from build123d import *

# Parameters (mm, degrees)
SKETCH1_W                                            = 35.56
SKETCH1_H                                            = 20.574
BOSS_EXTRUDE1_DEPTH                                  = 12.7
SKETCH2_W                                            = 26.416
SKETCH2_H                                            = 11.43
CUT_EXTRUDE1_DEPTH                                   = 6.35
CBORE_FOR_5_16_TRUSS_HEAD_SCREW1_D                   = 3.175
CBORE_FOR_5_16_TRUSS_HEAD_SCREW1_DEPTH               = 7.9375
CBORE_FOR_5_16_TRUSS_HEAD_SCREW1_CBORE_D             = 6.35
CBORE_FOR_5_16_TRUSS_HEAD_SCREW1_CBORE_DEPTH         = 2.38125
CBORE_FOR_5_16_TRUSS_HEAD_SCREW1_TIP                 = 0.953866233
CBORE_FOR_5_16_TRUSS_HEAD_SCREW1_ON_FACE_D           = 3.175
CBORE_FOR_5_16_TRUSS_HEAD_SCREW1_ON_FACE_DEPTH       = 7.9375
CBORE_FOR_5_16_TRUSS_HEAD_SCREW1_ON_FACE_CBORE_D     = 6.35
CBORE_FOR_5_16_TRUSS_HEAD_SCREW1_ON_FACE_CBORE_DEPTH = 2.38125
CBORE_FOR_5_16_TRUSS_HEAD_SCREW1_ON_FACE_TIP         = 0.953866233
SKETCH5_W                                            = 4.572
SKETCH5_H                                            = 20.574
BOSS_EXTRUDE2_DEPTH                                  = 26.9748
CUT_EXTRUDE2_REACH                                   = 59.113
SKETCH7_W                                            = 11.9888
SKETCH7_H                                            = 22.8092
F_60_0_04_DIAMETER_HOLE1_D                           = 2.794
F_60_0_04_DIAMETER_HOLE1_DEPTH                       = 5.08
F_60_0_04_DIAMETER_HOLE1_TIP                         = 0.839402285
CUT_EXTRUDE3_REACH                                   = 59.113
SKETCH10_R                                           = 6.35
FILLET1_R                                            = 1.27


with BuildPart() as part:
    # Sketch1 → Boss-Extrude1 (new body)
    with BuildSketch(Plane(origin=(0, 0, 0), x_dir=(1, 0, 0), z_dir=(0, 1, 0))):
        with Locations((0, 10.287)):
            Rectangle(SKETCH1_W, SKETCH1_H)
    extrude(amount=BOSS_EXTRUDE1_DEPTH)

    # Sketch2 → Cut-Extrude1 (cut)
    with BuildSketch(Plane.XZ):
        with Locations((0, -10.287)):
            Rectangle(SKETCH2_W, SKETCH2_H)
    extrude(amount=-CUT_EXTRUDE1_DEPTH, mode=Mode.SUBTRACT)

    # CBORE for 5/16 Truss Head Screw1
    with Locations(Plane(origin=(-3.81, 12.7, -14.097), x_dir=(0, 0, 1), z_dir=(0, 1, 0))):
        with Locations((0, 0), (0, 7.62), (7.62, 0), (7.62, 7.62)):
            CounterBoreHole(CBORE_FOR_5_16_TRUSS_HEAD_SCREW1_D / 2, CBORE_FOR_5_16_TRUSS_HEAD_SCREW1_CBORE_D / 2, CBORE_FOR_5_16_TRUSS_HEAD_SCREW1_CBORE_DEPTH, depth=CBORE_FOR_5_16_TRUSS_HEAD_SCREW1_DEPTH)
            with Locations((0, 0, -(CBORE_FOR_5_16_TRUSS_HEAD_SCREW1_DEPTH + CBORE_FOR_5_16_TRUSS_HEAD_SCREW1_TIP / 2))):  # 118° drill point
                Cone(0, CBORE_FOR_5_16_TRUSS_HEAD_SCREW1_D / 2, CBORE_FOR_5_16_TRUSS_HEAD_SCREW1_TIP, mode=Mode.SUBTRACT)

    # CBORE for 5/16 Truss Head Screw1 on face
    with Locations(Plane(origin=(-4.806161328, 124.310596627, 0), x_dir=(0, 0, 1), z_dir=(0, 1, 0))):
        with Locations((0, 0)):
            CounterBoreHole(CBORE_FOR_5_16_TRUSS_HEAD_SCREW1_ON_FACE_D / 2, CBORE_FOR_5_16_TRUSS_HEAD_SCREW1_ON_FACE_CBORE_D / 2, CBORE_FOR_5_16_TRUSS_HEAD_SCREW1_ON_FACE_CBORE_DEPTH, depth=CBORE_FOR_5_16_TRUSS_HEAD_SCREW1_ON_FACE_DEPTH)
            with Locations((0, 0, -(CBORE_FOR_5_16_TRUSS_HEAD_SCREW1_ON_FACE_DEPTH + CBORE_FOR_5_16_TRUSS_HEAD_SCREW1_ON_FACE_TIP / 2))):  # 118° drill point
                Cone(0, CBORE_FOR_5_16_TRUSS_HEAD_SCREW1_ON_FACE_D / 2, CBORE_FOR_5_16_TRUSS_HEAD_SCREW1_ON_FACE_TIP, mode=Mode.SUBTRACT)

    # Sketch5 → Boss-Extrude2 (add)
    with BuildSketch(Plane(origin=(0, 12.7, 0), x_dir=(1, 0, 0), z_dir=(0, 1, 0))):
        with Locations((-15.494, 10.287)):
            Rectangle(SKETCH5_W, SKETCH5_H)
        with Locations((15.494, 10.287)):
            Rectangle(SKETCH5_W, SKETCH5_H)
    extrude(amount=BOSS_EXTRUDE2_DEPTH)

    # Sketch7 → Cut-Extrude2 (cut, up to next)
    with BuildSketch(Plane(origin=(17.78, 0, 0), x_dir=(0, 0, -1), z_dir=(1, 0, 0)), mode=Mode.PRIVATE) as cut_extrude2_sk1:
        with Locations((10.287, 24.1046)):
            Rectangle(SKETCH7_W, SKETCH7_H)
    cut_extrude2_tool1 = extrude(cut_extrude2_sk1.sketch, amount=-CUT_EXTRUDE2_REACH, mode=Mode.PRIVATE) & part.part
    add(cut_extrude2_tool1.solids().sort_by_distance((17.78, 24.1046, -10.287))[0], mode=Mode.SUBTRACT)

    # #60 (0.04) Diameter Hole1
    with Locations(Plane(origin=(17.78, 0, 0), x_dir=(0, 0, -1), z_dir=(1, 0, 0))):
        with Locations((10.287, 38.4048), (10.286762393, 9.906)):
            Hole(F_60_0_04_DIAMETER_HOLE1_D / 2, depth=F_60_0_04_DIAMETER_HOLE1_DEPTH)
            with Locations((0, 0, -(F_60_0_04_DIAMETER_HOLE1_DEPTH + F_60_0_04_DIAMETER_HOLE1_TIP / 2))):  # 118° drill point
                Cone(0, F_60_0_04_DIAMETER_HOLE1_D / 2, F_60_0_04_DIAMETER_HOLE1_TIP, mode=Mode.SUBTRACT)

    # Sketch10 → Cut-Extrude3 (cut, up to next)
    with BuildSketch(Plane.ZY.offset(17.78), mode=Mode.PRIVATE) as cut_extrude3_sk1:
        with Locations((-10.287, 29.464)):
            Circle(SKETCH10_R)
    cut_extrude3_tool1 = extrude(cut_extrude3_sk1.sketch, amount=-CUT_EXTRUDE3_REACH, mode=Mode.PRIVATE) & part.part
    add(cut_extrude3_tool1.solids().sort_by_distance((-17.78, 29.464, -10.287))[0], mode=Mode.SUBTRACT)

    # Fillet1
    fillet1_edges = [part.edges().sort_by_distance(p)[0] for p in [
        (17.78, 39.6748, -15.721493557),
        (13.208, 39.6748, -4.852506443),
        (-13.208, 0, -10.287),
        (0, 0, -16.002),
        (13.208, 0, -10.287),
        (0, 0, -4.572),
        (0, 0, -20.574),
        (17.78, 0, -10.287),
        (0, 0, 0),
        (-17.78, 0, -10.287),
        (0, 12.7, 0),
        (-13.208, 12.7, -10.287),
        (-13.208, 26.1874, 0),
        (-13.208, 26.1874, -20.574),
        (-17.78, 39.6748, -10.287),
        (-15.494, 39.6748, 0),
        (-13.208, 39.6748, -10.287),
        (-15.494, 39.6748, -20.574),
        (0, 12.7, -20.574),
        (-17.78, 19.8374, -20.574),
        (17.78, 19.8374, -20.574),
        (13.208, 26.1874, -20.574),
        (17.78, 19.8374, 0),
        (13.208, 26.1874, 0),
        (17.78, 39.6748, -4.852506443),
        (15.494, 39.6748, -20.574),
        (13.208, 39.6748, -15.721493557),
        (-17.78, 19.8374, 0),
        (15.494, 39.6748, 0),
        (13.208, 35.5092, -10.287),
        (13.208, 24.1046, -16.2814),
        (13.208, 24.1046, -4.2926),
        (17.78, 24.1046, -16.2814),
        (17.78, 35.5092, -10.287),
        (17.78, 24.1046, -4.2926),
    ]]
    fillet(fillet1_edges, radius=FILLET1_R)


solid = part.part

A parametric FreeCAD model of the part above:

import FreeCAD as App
import Part
import Sketcher
Q = App.Units.Quantity


def edges_at(feature, points):
    """Names of the edges that pass closest to the given points."""
    edges = feature.Shape.Edges
    near = lambda p: min(range(len(edges)), key=lambda i: edges[i].distToShape(Part.Vertex(*p))[0])
    return sorted({f"Edge{near(p) + 1}" for p in points})


def add_polygon(sketch, points):
    """Adds a closed chain of lines whose ends are joined by coincident constraints."""
    first, n = sketch.GeometryCount, len(points)
    for a, b in zip(points, points[1:] + points[:1]):
        sketch.addGeometry(Part.LineSegment(App.Vector(*a, 0), App.Vector(*b, 0)), False)
    for i in range(n):
        sketch.addConstraint(Sketcher.Constraint("Coincident", first + i, 2, first + (i + 1) % n, 1))

doc = App.newDocument("Part")
body = doc.addObject("PartDesign::Body", "Body")

# Sketch on XZ plane
sketch1 = body.newObject("Sketcher::SketchObject", "Sketch")
sketch1.AttachmentSupport = (doc.getObject("XZ_Plane"), [""])
sketch1.MapMode = "FlatFace"
add_polygon(sketch1, [(-18, -21), (-18, 0), (18, 0), (18, -21)])  # lines 0-3
sketch1.addConstraint(Sketcher.Constraint("Vertical", 0))
sketch1.addConstraint(Sketcher.Constraint("Horizontal", 1))
sketch1.addConstraint(Sketcher.Constraint("Vertical", 2))
sketch1.addConstraint(Sketcher.Constraint("Horizontal", 3))
sketch1.addConstraint(Sketcher.Constraint("Symmetric", 0, 2, 1, 2, -1, 1))
sketch1.addConstraint(Sketcher.Constraint("DistanceX", 1, 1, 1, 2, Q("1.4 in")))
sketch1.addConstraint(Sketcher.Constraint("DistanceY", 0, 1, 0, 2, Q("0.81 in")))
pad1 = body.newObject("PartDesign::Pad", "Pad")
pad1.Profile = sketch1
pad1.Length = Q("0.5 in")
pad1.Reversed = True

# Sketch on XZ plane
sketch2 = body.newObject("Sketcher::SketchObject", "Sketch001")
sketch2.AttachmentSupport = (doc.getObject("XZ_Plane"), [""])
sketch2.MapMode = "FlatFace"
add_polygon(sketch2, [(-13, -5), (-13, -16), (13, -16), (13, -5)])  # lines 0-3
sketch2.addConstraint(Sketcher.Constraint("Vertical", 0))
sketch2.addConstraint(Sketcher.Constraint("Horizontal", 1))
sketch2.addConstraint(Sketcher.Constraint("Vertical", 2))
sketch2.addConstraint(Sketcher.Constraint("Horizontal", 3))
sketch2.addConstraint(Sketcher.Constraint("DistanceX", 1, 1, 1, 2, Q("1.04 in")))
sketch2.addConstraint(Sketcher.Constraint("DistanceY", 0, 2, 0, 1, Q("0.45 in")))
sketch2.addConstraint(Sketcher.Constraint("DistanceX", 0, 2, -1, 1, Q("0.52 in")))
sketch2.addConstraint(Sketcher.Constraint("DistanceY", 0, 2, -1, 1, Q("0.63 in")))
pocket1 = body.newObject("PartDesign::Pocket", "Pocket")
pocket1.Profile = sketch2
pocket1.Length = Q("0.25 in")

# Sketch on XZ plane
sketch3 = body.newObject("Sketcher::SketchObject", "Sketch002")
sketch3.AttachmentSupport = (doc.getObject("XZ_Plane"), [""])
sketch3.MapMode = "FlatFace"
sketch3.AttachmentOffset = App.Placement(App.Vector(0, 0, -0.5 * 25.4), App.Rotation())
sketch3.addGeometry(Part.Circle(App.Vector(-3.8, -14.1, 0), App.Vector(0, 0, 1), 1.6), False)
sketch3.addGeometry(Part.Circle(App.Vector(3.8, -14.1, 0), App.Vector(0, 0, 1), 1.6), False)
sketch3.addGeometry(Part.Circle(App.Vector(-3.8, -6.5, 0), App.Vector(0, 0, 1), 1.6), False)
sketch3.addGeometry(Part.Circle(App.Vector(3.8, -6.5, 0), App.Vector(0, 0, 1), 1.6), False)
sketch3.addConstraint(Sketcher.Constraint("Equal", 0, 1))
sketch3.addConstraint(Sketcher.Constraint("Equal", 1, 2))
sketch3.addConstraint(Sketcher.Constraint("Equal", 2, 3))
sketch3.addConstraint(Sketcher.Constraint("Symmetric", 0, 3, 1, 3, -2))
sketch3.addConstraint(Sketcher.Constraint("Symmetric", 2, 3, 3, 3, -2))
sketch3.addConstraint(Sketcher.Constraint("Vertical", 0, 3, 2, 3))
sketch3.addConstraint(Sketcher.Constraint("Diameter", 0, Q("0.125 in")))
sketch3.addConstraint(Sketcher.Constraint("DistanceX", 0, 3, 1, 3, Q("0.3 in")))
sketch3.addConstraint(Sketcher.Constraint("DistanceY", 0, 3, 2, 3, Q("0.3 in")))
sketch3.addConstraint(Sketcher.Constraint("DistanceY", 0, 3, -1, 1, Q("0.555 in")))
doc.recompute()
hole = body.newObject("PartDesign::Hole", "Hole")
hole.Profile = sketch3
hole.ThreadType = "None"
hole.Diameter = Q("0.125 in")
hole.DepthType = "Dimension"
hole.Depth = Q("0.3125 in")
hole.DrillPoint = "Angled"
hole.DrillPointAngle = 118
hole.HoleCutType = "Counterbore"
hole.HoleCutDiameter = Q("0.25 in")
hole.HoleCutDepth = Q("0.09375 in")
hole.Reversed = True

# Sketch on XZ plane
sketch4 = body.newObject("Sketcher::SketchObject", "Sketch003")
sketch4.AttachmentSupport = (doc.getObject("XZ_Plane"), [""])
sketch4.MapMode = "FlatFace"
sketch4.AttachmentOffset = App.Placement(App.Vector(0, 0, -124.310597), App.Rotation())
sketch4.addGeometry(Part.Circle(App.Vector(-4.8, 0, 0), App.Vector(0, 0, 1), 1.6), False)
sketch4.addConstraint(Sketcher.Constraint("PointOnObject", 0, 3, -1))
sketch4.addConstraint(Sketcher.Constraint("Diameter", 0, Q("0.125 in")))
sketch4.addConstraint(Sketcher.Constraint("DistanceX", 0, 3, -1, 1, 4.806161))
doc.recompute()
hole2 = body.newObject("PartDesign::Hole", "Hole001")
hole2.Profile = sketch4
hole2.ThreadType = "None"
hole2.Diameter = Q("0.125 in")
hole2.DepthType = "Dimension"
hole2.Depth = Q("0.3125 in")
hole2.DrillPoint = "Angled"
hole2.DrillPointAngle = 118
hole2.HoleCutType = "Counterbore"
hole2.HoleCutDiameter = Q("0.25 in")
hole2.HoleCutDepth = Q("0.09375 in")
hole2.Reversed = True

# Sketch on XZ plane
sketch5 = body.newObject("Sketcher::SketchObject", "Sketch004")
sketch5.AttachmentSupport = (doc.getObject("XZ_Plane"), [""])
sketch5.MapMode = "FlatFace"
sketch5.AttachmentOffset = App.Placement(App.Vector(0, 0, -0.5 * 25.4), App.Rotation())
add_polygon(sketch5, [(-17.8, -20.6), (-17.8, 0), (-13.2, 0), (-13.2, -20.6)])  # lines 0-3
add_polygon(sketch5, [(13.2, -20.6), (13.2, 0), (17.8, 0), (17.8, -20.6)])  # lines 4-7
sketch5.addConstraint(Sketcher.Constraint("Vertical", 0))
sketch5.addConstraint(Sketcher.Constraint("Horizontal", 1))
sketch5.addConstraint(Sketcher.Constraint("Vertical", 2))
sketch5.addConstraint(Sketcher.Constraint("Horizontal", 3))
sketch5.addConstraint(Sketcher.Constraint("Vertical", 4))
sketch5.addConstraint(Sketcher.Constraint("Horizontal", 5))
sketch5.addConstraint(Sketcher.Constraint("Vertical", 6))
sketch5.addConstraint(Sketcher.Constraint("Horizontal", 7))
sketch5.addConstraint(Sketcher.Constraint("Symmetric", 1, 2, 4, 2, -1, 1))
sketch5.addConstraint(Sketcher.Constraint("Symmetric", 0, 2, 5, 2, -2))
sketch5.addConstraint(Sketcher.Constraint("Horizontal", 3, 2, 6, 2))
sketch5.addConstraint(Sketcher.Constraint("DistanceX", 1, 1, 1, 2, Q("0.18 in")))
sketch5.addConstraint(Sketcher.Constraint("DistanceY", 0, 1, 0, 2, Q("0.81 in")))
sketch5.addConstraint(Sketcher.Constraint("DistanceX", 0, 2, -1, 1, Q("0.7 in")))
pad2 = body.newObject("PartDesign::Pad", "Pad001")
pad2.Profile = sketch5
pad2.Length = Q("1.062 in")
pad2.Reversed = True

# Sketch on YZ plane
sketch6 = body.newObject("Sketcher::SketchObject", "Sketch005")
sketch6.AttachmentSupport = (doc.getObject("YZ_Plane"), [""])
sketch6.MapMode = "FlatFace"
sketch6.AttachmentOffset = App.Placement(App.Vector(0, 0, 0.7 * 25.4), App.Rotation())
add_polygon(sketch6, [(36, -4), (13, -4), (13, -16), (36, -16)])  # lines 0-3
sketch6.addConstraint(Sketcher.Constraint("Horizontal", 0))
sketch6.addConstraint(Sketcher.Constraint("Vertical", 1))
sketch6.addConstraint(Sketcher.Constraint("Horizontal", 2))
sketch6.addConstraint(Sketcher.Constraint("Vertical", 3))
sketch6.addConstraint(Sketcher.Constraint("DistanceX", -1, 1, 0, 2, Q("0.5 in")))
sketch6.addConstraint(Sketcher.Constraint("DistanceX", 0, 2, 0, 1, Q("0.898 in")))
sketch6.addConstraint(Sketcher.Constraint("DistanceY", 1, 2, 1, 1, Q("0.472 in")))
sketch6.addConstraint(Sketcher.Constraint("DistanceY", 0, 2, -1, 1, Q("0.169 in")))
pocket2 = body.newObject("PartDesign::Pocket", "Pocket001")
pocket2.Profile = sketch6
pocket2.Type = "UpToFirst"

# Sketch on YZ plane
sketch7 = body.newObject("Sketcher::SketchObject", "Sketch006")
sketch7.AttachmentSupport = (doc.getObject("YZ_Plane"), [""])
sketch7.MapMode = "FlatFace"
sketch7.AttachmentOffset = App.Placement(App.Vector(0, 0, 0.7 * 25.4), App.Rotation())
sketch7.addGeometry(Part.Circle(App.Vector(38.4, -10.3, 0), App.Vector(0, 0, 1), 1.4), False)
sketch7.addGeometry(Part.Circle(App.Vector(9.9, -10.3, 0), App.Vector(0, 0, 1), 1.4), False)
sketch7.addConstraint(Sketcher.Constraint("Equal", 0, 1))
sketch7.addConstraint(Sketcher.Constraint("Diameter", 0, Q("0.11 in")))
sketch7.addConstraint(Sketcher.Constraint("DistanceX", -1, 1, 1, 3, Q("0.39 in")))
sketch7.addConstraint(Sketcher.Constraint("DistanceX", -1, 1, 0, 3, Q("1.512 in")))
sketch7.addConstraint(Sketcher.Constraint("DistanceY", 0, 3, -1, 1, Q("0.405 in")))
sketch7.addConstraint(Sketcher.Constraint("DistanceY", 1, 3, -1, 1, 10.286762))
doc.recompute()
hole3 = body.newObject("PartDesign::Hole", "Hole002")
hole3.Profile = sketch7
hole3.ThreadType = "None"
hole3.Diameter = Q("0.11 in")
hole3.DepthType = "Dimension"
hole3.Depth = Q("0.2 in")
hole3.DrillPoint = "Angled"
hole3.DrillPointAngle = 118

# Sketch on YZ plane
sketch8 = body.newObject("Sketcher::SketchObject", "Sketch007")
sketch8.AttachmentSupport = (doc.getObject("YZ_Plane"), [""])
sketch8.MapMode = "FlatFace"
sketch8.AttachmentOffset = App.Placement(App.Vector(0, 0, -0.7 * 25.4), App.Rotation())
sketch8.addGeometry(Part.Circle(App.Vector(29, -10, 0), App.Vector(0, 0, 1), 6), False)
sketch8.addConstraint(Sketcher.Constraint("Diameter", 0, Q("0.5 in")))
sketch8.addConstraint(Sketcher.Constraint("DistanceX", -1, 1, 0, 3, Q("1.16 in")))
sketch8.addConstraint(Sketcher.Constraint("DistanceY", 0, 3, -1, 1, Q("0.405 in")))
pocket3 = body.newObject("PartDesign::Pocket", "Pocket002")
pocket3.Profile = sketch8
pocket3.Type = "UpToFirst"
pocket3.Reversed = True
doc.recompute()

fillet = body.newObject("PartDesign::Fillet", "Fillet")
fillet.Base = (pocket3, edges_at(pocket3, [
    (17.78, 39.675, -15.721),
    (13.208, 39.675, -4.853),
    (-13.208, 0, -10.287),
    (0, 0, -16.002),
    (13.208, 0, -10.287),
    (0, 0, -4.572),
    (0, 0, -20.574),
    (17.78, 0, -10.287),
    (0, 0, 0),
    (-17.78, 0, -10.287),
    (0, 12.7, 0),
    (-13.208, 12.7, -10.287),
    (-13.208, 26.187, 0),
    (-13.208, 26.187, -20.574),
    (-17.78, 39.675, -10.287),
    (-15.494, 39.675, 0),
    (-13.208, 39.675, -10.287),
    (-15.494, 39.675, -20.574),
    (0, 12.7, -20.574),
    (-17.78, 19.837, -20.574),
    (17.78, 19.837, -20.574),
    (13.208, 26.187, -20.574),
    (17.78, 19.837, 0),
    (13.208, 26.187, 0),
    (17.78, 39.675, -4.853),
    (15.494, 39.675, -20.574),
    (13.208, 39.675, -15.721),
    (-17.78, 19.837, 0),
    (15.494, 39.675, 0),
    (13.208, 35.509, -10.287),
    (13.208, 24.105, -16.281),
    (13.208, 24.105, -4.293),
    (17.78, 24.105, -16.281),
    (17.78, 35.509, -10.287),
    (17.78, 24.105, -4.293),
]))
fillet.Radius = Q("0.05 in")

doc.recompute()
